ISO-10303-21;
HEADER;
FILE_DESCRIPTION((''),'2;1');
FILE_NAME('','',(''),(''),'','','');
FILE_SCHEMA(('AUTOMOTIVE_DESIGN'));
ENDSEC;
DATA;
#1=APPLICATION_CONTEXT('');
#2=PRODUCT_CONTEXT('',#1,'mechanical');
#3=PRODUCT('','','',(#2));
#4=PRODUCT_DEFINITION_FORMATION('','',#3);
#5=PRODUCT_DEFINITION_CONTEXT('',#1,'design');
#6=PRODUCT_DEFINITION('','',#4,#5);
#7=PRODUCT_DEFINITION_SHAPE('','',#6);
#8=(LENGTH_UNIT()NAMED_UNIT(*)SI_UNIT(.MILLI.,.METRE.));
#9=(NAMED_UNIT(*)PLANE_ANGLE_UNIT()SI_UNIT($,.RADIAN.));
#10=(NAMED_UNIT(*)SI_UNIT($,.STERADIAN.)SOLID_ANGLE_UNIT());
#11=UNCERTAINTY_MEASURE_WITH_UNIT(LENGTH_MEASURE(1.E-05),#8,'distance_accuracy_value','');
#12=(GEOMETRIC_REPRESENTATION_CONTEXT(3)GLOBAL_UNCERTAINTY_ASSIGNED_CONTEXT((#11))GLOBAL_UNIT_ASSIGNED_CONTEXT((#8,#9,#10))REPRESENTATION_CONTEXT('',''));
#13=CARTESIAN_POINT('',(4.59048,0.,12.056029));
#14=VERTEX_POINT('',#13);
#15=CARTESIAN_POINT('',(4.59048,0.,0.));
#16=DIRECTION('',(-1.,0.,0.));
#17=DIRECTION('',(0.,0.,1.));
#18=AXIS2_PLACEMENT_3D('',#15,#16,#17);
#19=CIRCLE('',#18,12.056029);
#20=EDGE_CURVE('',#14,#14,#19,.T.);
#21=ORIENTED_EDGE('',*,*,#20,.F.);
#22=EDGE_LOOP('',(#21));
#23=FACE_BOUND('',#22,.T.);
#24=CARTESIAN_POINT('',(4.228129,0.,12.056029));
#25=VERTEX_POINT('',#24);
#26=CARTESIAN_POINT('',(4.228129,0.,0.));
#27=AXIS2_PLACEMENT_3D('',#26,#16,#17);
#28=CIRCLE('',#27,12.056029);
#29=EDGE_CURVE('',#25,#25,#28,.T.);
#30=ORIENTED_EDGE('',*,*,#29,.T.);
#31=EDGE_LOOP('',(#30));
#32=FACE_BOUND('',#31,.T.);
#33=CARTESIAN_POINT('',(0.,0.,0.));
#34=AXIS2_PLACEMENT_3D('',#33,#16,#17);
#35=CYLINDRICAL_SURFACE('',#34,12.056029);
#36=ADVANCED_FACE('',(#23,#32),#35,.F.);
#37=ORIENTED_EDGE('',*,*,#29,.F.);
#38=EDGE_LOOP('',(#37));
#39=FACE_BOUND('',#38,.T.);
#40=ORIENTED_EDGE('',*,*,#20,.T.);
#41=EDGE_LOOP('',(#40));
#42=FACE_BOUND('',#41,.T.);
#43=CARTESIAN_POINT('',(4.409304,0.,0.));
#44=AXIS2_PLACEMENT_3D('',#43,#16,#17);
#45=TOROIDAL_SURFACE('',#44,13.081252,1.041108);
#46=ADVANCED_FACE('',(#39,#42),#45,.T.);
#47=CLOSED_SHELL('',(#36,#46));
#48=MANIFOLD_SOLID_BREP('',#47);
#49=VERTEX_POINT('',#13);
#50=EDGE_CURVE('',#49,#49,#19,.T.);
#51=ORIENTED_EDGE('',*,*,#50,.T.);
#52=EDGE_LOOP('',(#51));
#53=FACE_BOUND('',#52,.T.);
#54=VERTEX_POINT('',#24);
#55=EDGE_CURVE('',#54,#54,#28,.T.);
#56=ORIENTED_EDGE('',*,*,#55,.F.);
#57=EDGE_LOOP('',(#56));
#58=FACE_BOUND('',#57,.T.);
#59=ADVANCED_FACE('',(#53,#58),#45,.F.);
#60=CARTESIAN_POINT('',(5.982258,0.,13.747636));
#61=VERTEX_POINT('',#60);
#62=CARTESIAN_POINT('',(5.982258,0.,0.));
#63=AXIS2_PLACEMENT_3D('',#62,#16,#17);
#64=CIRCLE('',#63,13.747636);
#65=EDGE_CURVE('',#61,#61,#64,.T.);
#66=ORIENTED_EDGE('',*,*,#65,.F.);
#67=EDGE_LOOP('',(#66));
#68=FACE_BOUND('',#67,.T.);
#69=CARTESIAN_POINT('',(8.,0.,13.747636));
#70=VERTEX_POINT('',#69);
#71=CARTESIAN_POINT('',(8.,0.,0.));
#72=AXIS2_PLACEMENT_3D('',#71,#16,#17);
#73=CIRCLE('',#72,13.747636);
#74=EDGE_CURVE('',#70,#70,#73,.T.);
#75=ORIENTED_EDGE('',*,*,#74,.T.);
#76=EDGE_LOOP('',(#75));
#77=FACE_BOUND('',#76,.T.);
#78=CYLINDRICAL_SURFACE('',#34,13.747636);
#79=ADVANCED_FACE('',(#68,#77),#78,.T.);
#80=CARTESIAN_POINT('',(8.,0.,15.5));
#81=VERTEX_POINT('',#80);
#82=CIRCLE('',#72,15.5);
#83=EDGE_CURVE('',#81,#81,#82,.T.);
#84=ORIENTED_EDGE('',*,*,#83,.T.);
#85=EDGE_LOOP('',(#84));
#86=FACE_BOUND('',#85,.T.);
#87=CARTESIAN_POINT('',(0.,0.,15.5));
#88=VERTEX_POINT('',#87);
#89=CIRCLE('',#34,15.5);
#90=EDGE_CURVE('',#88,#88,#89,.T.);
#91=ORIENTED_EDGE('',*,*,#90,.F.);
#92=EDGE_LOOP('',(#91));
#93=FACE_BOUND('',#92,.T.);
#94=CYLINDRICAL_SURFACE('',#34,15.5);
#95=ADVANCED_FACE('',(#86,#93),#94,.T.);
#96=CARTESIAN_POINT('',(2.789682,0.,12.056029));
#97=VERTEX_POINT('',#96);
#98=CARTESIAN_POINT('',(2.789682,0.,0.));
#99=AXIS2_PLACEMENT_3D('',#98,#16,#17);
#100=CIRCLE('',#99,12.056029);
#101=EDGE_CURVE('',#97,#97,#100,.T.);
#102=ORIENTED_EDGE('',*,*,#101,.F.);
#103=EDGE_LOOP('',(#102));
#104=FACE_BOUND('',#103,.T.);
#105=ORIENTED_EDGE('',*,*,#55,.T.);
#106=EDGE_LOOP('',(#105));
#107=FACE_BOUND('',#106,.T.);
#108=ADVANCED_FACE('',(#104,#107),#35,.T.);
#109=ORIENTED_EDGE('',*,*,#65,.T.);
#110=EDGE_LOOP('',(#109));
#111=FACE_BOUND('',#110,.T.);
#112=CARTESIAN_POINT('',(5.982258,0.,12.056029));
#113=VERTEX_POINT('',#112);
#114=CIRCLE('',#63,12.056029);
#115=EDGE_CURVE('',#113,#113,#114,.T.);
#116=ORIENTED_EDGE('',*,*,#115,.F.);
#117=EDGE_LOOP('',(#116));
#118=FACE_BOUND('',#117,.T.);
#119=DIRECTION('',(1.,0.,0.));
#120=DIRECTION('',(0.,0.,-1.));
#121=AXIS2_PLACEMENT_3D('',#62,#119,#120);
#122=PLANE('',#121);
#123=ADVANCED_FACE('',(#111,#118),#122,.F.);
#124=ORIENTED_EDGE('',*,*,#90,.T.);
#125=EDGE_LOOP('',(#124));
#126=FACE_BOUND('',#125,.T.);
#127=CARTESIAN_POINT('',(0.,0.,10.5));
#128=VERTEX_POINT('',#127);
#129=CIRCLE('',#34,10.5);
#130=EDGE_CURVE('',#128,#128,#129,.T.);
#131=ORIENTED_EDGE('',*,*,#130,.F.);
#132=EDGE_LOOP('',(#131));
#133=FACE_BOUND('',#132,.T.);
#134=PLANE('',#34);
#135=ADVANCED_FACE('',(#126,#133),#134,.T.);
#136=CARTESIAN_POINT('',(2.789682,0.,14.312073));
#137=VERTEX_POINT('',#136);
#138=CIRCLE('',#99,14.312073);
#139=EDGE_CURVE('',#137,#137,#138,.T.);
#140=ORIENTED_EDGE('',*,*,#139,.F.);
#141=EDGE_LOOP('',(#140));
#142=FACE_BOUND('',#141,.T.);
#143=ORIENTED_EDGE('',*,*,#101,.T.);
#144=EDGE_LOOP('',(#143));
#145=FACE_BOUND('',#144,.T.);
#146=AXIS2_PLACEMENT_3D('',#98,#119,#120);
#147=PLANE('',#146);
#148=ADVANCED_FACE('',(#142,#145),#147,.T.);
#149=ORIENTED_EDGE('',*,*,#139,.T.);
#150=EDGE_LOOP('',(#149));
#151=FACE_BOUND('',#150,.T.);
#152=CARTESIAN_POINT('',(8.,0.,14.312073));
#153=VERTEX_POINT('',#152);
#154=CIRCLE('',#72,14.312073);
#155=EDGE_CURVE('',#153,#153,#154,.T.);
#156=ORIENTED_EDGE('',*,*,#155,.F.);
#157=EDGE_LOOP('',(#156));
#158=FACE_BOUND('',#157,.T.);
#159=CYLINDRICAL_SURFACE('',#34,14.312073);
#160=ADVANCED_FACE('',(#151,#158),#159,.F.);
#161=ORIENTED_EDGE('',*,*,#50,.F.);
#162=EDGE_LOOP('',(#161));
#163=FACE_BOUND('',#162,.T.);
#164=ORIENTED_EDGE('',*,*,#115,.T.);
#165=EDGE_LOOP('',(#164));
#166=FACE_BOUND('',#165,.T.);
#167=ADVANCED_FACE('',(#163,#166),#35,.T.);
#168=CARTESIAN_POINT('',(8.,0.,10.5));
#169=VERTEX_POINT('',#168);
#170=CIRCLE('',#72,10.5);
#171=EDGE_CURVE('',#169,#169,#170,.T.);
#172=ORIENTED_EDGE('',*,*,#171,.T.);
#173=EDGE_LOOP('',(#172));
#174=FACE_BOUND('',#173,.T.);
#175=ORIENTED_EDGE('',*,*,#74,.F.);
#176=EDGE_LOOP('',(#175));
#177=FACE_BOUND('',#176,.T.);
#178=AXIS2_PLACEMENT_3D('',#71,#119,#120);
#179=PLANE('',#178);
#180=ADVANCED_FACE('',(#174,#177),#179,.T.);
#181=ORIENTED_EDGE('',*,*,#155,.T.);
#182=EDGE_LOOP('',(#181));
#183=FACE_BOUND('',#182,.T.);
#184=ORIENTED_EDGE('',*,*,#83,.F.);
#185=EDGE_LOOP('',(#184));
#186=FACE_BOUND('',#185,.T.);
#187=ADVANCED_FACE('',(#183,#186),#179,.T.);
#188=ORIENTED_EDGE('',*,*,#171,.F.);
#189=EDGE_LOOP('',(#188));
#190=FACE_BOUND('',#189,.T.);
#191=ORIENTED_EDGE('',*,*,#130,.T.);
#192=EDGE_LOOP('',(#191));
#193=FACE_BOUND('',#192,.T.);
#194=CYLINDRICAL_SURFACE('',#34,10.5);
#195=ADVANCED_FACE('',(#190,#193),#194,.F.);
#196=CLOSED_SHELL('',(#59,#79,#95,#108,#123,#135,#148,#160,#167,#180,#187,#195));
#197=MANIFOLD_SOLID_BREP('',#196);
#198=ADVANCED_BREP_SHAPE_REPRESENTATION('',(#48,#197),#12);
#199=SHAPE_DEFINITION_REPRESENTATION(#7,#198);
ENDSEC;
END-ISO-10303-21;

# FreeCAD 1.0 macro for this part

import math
import FreeCAD as App
import Part
import Sketcher

doc = App.newDocument("Part")
body = doc.addObject("PartDesign::Body", "Body")
body.AllowCompound = True

# Sketch on XY plane
sketch1 = doc.addObject("Sketcher::SketchObject", "Sketch")
body.addObject(sketch1)
sketch1.AttachmentSupport = (doc.XY_Plane, [""])
sketch1.MapMode = "FlatFace"
sketch1.addGeometry([
    Part.LineSegment(App.Vector(0, 15.5, 0), App.Vector(0, 10.5, 0)),  # 0
    Part.LineSegment(App.Vector(0, 10.5, 0), App.Vector(8, 10.5, 0)),  # 1
    Part.LineSegment(App.Vector(8, 10.5, 0), App.Vector(8, 13.75, 0)),  # 2
    Part.LineSegment(App.Vector(8, 13.75, 0), App.Vector(5.98, 13.75, 0)),  # 3
    Part.LineSegment(App.Vector(5.98, 13.75, 0), App.Vector(5.98, 12.06, 0)),  # 4
    Part.LineSegment(App.Vector(5.98, 12.06, 0), App.Vector(4.59, 12.06, 0)),  # 5
    Part.ArcOfCircle(Part.Circle(App.Vector(4.41, 13.08, 0), App.Vector(0, 0, 1), 1.04), math.radians(-100), math.radians(-80)),  # 6
    Part.LineSegment(App.Vector(4.23, 12.06, 0), App.Vector(2.79, 12.06, 0)),  # 7
    Part.LineSegment(App.Vector(2.79, 12.06, 0), App.Vector(2.79, 14.31, 0)),  # 8
    Part.LineSegment(App.Vector(2.79, 14.31, 0), App.Vector(8, 14.31, 0)),  # 9
    Part.LineSegment(App.Vector(8, 14.31, 0), App.Vector(8, 15.5, 0)),  # 10
    Part.LineSegment(App.Vector(8, 15.5, 0), App.Vector(0, 15.5, 0)),  # 11
    Part.LineSegment(App.Vector(4.23, 12.06, 0), App.Vector(4.59, 12.06, 0)),  # 12
    Part.ArcOfCircle(Part.Circle(App.Vector(4.41, 13.08, 0), App.Vector(0, 0, 1), 1.04), math.radians(-80), math.radians(260)),  # 13
], False)
sketch1.addConstraint([
    Sketcher.Constraint("Coincident", 0, 2, 1, 1),
    Sketcher.Constraint("Coincident", 1, 2, 2, 1),
    Sketcher.Constraint("Coincident", 2, 2, 3, 1),
    Sketcher.Constraint("Coincident", 3, 2, 4, 1),
    Sketcher.Constraint("Coincident", 4, 2, 5, 1),
    Sketcher.Constraint("Coincident", 5, 2, 6, 2),
    Sketcher.Constraint("Coincident", 6, 1, 7, 1),
    Sketcher.Constraint("Coincident", 7, 2, 8, 1),
    Sketcher.Constraint("Coincident", 8, 2, 9, 1),
    Sketcher.Constraint("Coincident", 9, 2, 10, 1),
    Sketcher.Constraint("Coincident", 10, 2, 11, 1),
    Sketcher.Constraint("Coincident", 11, 2, 0, 1),
    Sketcher.Constraint("Coincident", 12, 1, 13, 2),
    Sketcher.Constraint("Coincident", 13, 1, 12, 2),
    Sketcher.Constraint("Vertical", 0),
    Sketcher.Constraint("Horizontal", 1),
    Sketcher.Constraint("Vertical", 2),
    Sketcher.Constraint("Horizontal", 3),
    Sketcher.Constraint("Vertical", 4),
    Sketcher.Constraint("Horizontal", 5),
    Sketcher.Constraint("Horizontal", 7),
    Sketcher.Constraint("Vertical", 8),
    Sketcher.Constraint("Horizontal", 9),
    Sketcher.Constraint("Vertical", 10),
    Sketcher.Constraint("Horizontal", 11),
    Sketcher.Constraint("Horizontal", 12),
    Sketcher.Constraint("Coincident", 13, 3, 6, 3),
    Sketcher.Constraint("Coincident", 12, 1, 6, 1),
    Sketcher.Constraint("PointOnObject", 0, 2, -2),
    Sketcher.Constraint("Horizontal", 5, 2, 6, 1),
    Sketcher.Constraint("Vertical", 2, 2, 9, 2),
    Sketcher.Constraint("DistanceX", 1, 1, 1, 2, 8.0),
    Sketcher.Constraint("DistanceY", 0, 2, 0, 1, 5.0),
    Sketcher.Constraint("DistanceY", -1, 1, 0, 2, 10.5),
    Sketcher.Constraint("Radius", 6, 1.041108),
    Sketcher.Constraint("DistanceX", 3, 2, 3, 1, 2.017742),
    Sketcher.Constraint("DistanceX", 5, 2, 5, 1, 1.391779),
    Sketcher.Constraint("DistanceX", 9, 1, 9, 2, 5.210318),
    Sketcher.Constraint("DistanceX", 12, 1, 12, 2, 0.362351),
    Sketcher.Constraint("DistanceY", 2, 1, 2, 2, 3.247636),
    Sketcher.Constraint("DistanceY", 4, 2, 4, 1, 1.691607),
    Sketcher.Constraint("DistanceY", 8, 1, 8, 2, 2.256044),
])
revolution = doc.addObject("PartDesign::Revolution", "Revolution")
body.addObject(revolution)
revolution.Profile = sketch1
revolution.ReferenceAxis = (sketch1, ["H_Axis"])
revolution.Angle = 360

doc.recompute()
